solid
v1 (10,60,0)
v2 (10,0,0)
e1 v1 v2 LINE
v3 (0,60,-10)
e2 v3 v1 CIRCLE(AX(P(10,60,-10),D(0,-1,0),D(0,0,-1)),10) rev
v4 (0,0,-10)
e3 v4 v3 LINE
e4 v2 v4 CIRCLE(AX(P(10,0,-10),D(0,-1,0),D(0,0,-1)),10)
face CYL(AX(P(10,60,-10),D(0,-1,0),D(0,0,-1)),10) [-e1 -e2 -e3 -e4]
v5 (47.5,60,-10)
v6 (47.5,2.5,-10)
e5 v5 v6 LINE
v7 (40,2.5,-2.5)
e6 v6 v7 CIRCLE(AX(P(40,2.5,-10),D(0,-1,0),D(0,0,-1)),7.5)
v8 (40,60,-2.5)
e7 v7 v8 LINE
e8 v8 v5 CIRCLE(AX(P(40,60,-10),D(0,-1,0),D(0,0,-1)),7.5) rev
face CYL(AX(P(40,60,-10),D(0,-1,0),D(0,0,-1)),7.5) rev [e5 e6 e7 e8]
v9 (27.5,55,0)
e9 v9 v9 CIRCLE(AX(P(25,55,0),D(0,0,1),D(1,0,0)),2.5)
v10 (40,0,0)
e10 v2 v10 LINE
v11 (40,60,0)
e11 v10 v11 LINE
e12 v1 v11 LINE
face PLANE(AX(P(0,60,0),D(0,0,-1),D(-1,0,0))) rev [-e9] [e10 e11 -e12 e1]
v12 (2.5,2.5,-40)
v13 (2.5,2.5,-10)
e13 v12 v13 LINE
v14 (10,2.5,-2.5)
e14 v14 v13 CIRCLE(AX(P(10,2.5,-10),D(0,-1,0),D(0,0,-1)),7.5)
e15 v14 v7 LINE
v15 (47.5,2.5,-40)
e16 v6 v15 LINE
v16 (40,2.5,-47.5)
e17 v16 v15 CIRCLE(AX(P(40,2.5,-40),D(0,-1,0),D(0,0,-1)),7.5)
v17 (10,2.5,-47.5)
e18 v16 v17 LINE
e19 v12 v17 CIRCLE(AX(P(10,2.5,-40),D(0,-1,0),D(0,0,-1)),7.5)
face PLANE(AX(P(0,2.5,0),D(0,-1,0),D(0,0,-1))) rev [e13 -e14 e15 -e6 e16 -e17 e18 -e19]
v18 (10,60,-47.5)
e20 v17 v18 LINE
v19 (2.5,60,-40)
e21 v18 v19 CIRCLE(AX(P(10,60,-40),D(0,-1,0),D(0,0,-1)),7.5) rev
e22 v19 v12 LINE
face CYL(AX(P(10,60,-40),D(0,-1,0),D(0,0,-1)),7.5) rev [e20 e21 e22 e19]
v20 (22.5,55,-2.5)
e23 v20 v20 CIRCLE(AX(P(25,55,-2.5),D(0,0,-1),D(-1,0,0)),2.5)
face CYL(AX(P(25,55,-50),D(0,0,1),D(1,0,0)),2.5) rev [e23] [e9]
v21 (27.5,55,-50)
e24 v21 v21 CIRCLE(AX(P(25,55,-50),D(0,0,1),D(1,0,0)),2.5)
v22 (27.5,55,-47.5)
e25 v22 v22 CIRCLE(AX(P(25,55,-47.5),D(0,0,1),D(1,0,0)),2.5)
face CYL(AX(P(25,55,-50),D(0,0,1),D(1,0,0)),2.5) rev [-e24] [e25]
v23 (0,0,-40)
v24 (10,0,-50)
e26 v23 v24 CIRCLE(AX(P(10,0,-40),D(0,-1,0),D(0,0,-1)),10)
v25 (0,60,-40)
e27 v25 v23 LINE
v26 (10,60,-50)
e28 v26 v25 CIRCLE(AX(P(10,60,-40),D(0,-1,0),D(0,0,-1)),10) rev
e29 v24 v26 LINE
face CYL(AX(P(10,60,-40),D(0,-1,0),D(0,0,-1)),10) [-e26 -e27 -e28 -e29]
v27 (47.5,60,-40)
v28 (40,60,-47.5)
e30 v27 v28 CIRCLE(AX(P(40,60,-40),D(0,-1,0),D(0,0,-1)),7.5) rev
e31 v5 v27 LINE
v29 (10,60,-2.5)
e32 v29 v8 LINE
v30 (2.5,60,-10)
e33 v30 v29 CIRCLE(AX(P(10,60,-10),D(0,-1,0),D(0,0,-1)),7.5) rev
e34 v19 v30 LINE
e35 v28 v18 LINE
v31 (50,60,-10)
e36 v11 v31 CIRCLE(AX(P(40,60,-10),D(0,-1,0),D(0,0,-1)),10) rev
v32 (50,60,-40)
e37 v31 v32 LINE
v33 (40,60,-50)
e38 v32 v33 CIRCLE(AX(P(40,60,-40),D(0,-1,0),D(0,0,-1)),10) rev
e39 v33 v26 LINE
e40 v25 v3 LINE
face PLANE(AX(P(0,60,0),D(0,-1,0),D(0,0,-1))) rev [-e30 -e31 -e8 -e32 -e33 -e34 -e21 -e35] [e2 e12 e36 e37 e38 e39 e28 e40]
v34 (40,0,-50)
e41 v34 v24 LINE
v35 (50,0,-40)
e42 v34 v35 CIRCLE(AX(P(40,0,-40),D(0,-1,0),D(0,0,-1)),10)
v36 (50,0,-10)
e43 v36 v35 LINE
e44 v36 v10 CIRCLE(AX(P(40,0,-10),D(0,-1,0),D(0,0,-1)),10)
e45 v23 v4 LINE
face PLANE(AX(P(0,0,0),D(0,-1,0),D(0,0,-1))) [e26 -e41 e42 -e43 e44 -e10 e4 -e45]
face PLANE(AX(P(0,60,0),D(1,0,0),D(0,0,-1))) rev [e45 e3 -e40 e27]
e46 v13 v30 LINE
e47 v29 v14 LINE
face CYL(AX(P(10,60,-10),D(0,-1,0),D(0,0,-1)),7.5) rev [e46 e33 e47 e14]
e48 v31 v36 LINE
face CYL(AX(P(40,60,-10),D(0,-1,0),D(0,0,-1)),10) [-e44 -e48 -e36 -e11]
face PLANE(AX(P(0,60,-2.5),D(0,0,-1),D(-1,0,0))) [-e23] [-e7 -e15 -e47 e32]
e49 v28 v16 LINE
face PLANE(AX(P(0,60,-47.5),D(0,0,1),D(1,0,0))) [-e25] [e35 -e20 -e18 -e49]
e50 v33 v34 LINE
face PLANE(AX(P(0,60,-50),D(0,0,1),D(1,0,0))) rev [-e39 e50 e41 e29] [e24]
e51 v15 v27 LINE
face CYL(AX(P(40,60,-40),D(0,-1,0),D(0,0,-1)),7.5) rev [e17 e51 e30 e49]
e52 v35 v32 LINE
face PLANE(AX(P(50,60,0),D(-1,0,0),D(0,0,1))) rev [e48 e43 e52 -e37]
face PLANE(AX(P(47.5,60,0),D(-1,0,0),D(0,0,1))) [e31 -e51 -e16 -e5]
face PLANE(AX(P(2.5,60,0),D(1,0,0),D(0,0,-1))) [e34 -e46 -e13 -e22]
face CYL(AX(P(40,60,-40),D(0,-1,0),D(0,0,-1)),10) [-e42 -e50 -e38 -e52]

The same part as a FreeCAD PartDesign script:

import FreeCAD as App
import Part
import Sketcher
Q = App.Units.Quantity


def edges_at(feature, points):
    """Names of the edges that pass closest to the given points."""
    edges = feature.Shape.Edges
    near = lambda p: min(range(len(edges)), key=lambda i: edges[i].distToShape(Part.Vertex(*p))[0])
    return sorted({f"Edge{near(p) + 1}" for p in points})


def faces_at(feature, points):
    """Names of the faces that lie closest to the given points."""
    faces = feature.Shape.Faces
    near = lambda p: min(range(len(faces)), key=lambda i: faces[i].distToShape(Part.Vertex(*p))[0])
    return sorted({f"Face{near(p) + 1}" for p in points})


def add_polygon(sketch, points):
    """Adds a closed chain of lines whose ends are joined by coincident constraints."""
    first, n = sketch.GeometryCount, len(points)
    for a, b in zip(points, points[1:] + points[:1]):
        sketch.addGeometry(Part.LineSegment(App.Vector(*a, 0), App.Vector(*b, 0)), False)
    for i in range(n):
        sketch.addConstraint(Sketcher.Constraint("Coincident", first + i, 2, first + (i + 1) % n, 1))

doc = App.newDocument("Part")
params = doc.addObject("Spreadsheet::Sheet", "Params")
for row, (alias, value) in enumerate([
    ("sketch1_width", "50 mm"),
    ("pad1_length", "60 mm"),
    ("fillet_radius", "10 mm"),
    ("thickness_wall", "2.5 mm"),
    ("sketch2_diameter", "5 mm"),
], start=1):
    params.set(f"A{row}", alias)
    params.set(f"B{row}", "=" + value)
    params.setAlias(f"B{row}", alias)

body = doc.addObject("PartDesign::Body", "Body")

# Sketch on XZ plane
sketch1 = doc.addObject("Sketcher::SketchObject", "Sketch")
body.addObject(sketch1)
sketch1.AttachmentSupport = (doc.XZ_Plane, [""])
sketch1.MapMode = "FlatFace"
add_polygon(sketch1, [(0, -50), (0, 0), (50, 0), (50, -50)])  # lines 0-3
sketch1.addConstraint([
    Sketcher.Constraint("Vertical", 0),
    Sketcher.Constraint("Horizontal", 1),
    Sketcher.Constraint("Vertical", 2),
    Sketcher.Constraint("Horizontal", 3),
    Sketcher.Constraint("Coincident", 0, 2, -1, 1),
    Sketcher.Constraint("Equal", 3, 0),
    Sketcher.Constraint("DistanceX", 1, 1, 1, 2, Q("50 mm")),
])
sketch1.setExpression("Constraints[10]", "Params.sketch1_width")
pad1 = doc.addObject("PartDesign::Pad", "Pad")
body.addObject(pad1)
pad1.Profile = sketch1
pad1.setExpression("Length", "Params.pad1_length")
pad1.Reversed = True
doc.recompute()

fillet = doc.addObject("PartDesign::Fillet", "Fillet")
body.addObject(fillet)
fillet.Base = (pad1, edges_at(pad1, [
    (0, 30, -50),
    (50, 30, -50),
    (50, 30, 0),
    (0, 30, 0),
]))
fillet.setExpression("Radius", "Params.fillet_radius")
doc.recompute()

thickness = doc.addObject("PartDesign::Thickness", "Thickness")
body.addObject(thickness)
thickness.Base = (fillet, faces_at(fillet, [(25, 60, -25)]))
thickness.setExpression("Value", "Params.thickness_wall")
thickness.Reversed = True
thickness.Join = "Intersection"

# Sketch on XY plane
sketch2 = doc.addObject("Sketcher::SketchObject", "Sketch001")
body.addObject(sketch2)
sketch2.AttachmentSupport = (doc.XY_Plane, [""])
sketch2.MapMode = "FlatFace"
sketch2.addGeometry(Part.Circle(App.Vector(25, 55, 0), App.Vector(0, 0, 1), 2.5), False)
sketch2.addConstraint([
    Sketcher.Constraint("Diameter", 0, Q("5 mm")),
    Sketcher.Constraint("DistanceX", -1, 1, 0, 3, Q("25 mm")),
    Sketcher.Constraint("DistanceY", -1, 1, 0, 3, Q("55 mm")),
])
sketch2.setExpression("Constraints[0]", "Params.sketch2_diameter")
pocket1 = doc.addObject("PartDesign::Pocket", "Pocket")
body.addObject(pocket1)
pocket1.Profile = sketch2
pocket1.Type = "ThroughAll"

doc.recompute()
